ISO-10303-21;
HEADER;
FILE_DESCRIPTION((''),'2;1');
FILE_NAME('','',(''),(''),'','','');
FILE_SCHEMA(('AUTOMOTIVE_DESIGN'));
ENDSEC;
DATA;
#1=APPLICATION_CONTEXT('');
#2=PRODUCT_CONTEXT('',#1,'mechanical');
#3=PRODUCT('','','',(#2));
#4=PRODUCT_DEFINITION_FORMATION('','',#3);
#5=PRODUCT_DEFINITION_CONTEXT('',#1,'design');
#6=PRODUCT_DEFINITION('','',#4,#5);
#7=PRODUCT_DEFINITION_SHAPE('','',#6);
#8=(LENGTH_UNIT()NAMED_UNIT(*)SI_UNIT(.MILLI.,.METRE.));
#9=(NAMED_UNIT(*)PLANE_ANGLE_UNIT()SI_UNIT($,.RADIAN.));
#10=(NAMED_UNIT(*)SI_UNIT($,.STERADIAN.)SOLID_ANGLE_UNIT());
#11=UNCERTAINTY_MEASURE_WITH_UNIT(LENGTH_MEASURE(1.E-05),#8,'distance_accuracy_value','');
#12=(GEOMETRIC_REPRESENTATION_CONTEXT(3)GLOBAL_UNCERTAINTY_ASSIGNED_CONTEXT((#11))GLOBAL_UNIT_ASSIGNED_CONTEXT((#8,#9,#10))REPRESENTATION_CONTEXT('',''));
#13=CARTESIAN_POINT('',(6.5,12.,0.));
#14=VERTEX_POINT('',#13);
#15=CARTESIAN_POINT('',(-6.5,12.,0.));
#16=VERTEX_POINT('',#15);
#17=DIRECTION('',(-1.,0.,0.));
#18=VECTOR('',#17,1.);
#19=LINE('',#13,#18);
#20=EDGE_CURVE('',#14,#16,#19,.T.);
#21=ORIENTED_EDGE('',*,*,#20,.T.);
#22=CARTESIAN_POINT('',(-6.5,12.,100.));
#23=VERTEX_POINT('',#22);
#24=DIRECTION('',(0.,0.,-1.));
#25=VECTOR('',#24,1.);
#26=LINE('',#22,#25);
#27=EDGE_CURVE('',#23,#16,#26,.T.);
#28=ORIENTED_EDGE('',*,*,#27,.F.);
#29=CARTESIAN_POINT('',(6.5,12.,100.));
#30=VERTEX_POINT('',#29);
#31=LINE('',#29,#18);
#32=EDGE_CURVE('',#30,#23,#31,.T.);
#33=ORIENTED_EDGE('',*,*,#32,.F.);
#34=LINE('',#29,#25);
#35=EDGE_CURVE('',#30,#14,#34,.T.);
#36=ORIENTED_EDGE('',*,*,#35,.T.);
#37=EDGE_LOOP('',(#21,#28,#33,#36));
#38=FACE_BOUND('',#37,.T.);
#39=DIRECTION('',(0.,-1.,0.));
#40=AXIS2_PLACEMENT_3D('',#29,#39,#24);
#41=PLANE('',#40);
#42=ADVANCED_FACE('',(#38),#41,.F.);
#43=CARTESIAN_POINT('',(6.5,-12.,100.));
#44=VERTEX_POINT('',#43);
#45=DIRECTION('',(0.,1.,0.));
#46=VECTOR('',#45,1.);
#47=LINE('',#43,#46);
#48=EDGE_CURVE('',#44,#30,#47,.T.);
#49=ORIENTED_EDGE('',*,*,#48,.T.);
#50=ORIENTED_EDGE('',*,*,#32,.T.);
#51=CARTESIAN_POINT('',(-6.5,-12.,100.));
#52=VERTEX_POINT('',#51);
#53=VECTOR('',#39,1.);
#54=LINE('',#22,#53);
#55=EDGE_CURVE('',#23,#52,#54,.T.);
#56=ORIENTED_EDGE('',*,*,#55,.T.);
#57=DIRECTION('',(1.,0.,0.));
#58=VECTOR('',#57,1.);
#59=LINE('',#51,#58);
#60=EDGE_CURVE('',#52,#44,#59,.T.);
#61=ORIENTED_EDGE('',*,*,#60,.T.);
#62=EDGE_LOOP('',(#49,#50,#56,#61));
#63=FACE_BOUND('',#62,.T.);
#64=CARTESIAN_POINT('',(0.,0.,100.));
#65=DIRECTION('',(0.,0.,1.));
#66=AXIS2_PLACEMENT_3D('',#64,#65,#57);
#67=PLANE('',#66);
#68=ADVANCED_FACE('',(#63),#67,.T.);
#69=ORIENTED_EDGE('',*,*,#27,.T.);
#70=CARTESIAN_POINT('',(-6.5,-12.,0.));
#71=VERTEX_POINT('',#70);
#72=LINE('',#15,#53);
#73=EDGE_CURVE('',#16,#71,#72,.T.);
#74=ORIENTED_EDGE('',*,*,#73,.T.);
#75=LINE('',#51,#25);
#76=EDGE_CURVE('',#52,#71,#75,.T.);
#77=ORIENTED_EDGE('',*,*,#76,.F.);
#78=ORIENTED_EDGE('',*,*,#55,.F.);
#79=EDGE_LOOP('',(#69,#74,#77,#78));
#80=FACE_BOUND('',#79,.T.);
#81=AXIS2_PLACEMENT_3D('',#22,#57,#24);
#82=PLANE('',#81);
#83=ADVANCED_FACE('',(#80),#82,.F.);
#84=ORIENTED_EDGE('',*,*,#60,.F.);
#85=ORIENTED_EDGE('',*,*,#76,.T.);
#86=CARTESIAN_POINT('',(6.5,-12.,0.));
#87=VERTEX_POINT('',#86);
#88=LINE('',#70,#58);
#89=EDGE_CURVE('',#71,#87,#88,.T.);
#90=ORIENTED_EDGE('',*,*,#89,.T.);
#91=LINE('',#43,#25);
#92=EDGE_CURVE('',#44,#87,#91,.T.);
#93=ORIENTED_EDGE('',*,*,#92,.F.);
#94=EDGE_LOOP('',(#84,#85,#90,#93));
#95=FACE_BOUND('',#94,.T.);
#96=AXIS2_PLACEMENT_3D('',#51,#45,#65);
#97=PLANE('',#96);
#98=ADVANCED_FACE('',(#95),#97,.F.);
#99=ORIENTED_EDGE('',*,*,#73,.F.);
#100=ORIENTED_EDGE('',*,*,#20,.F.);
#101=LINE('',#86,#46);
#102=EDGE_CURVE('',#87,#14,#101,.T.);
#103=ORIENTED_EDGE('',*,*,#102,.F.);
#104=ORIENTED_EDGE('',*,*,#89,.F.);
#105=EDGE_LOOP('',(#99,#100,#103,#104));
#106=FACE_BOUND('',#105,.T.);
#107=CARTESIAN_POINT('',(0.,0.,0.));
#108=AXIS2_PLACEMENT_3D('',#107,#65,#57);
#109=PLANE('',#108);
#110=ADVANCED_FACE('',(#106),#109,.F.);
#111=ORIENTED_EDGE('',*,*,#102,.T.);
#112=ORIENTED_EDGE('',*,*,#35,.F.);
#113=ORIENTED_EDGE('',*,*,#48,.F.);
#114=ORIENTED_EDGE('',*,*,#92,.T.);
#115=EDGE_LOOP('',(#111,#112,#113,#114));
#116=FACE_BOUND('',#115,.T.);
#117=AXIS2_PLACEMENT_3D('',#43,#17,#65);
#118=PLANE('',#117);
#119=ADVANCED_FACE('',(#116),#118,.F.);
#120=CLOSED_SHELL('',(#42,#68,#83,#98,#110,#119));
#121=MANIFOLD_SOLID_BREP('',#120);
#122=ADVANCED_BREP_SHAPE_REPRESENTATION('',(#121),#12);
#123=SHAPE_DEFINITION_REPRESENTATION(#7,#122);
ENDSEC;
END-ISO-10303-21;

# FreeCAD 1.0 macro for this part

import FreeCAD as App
import Part
import Sketcher

V = App.Vector

doc = App.newDocument("Part")
body = doc.addObject("PartDesign::Body", "Body")

sketch1 = body.newObject("Sketcher::SketchObject", "Sketch")
sketch1.AttachmentSupport = (doc.getObject("XY_Plane"), [""])
sketch1.MapMode = "FlatFace"
sketch1.addGeometry(Part.LineSegment(V(-6.5, 12, 0), V(-6.5, -12, 0)), False)
sketch1.addGeometry(Part.LineSegment(V(-6.5, -12, 0), V(6.5, -12, 0)), False)
sketch1.addGeometry(Part.LineSegment(V(6.5, -12, 0), V(6.5, 12, 0)), False)
sketch1.addGeometry(Part.LineSegment(V(6.5, 12, 0), V(-6.5, 12, 0)), False)
sketch1.addConstraint(Sketcher.Constraint("Coincident", 0, 2, 1, 1))
sketch1.addConstraint(Sketcher.Constraint("Coincident", 1, 2, 2, 1))
sketch1.addConstraint(Sketcher.Constraint("Coincident", 2, 2, 3, 1))
sketch1.addConstraint(Sketcher.Constraint("Coincident", 3, 2, 0, 1))
sketch1.addConstraint(Sketcher.Constraint("Vertical", 0))
sketch1.addConstraint(Sketcher.Constraint("Horizontal", 1))
sketch1.addConstraint(Sketcher.Constraint("Vertical", 2))
sketch1.addConstraint(Sketcher.Constraint("Horizontal", 3))
sketch1.addConstraint(Sketcher.Constraint("Symmetric", 0, 2, 2, 2, -1, 1))
sketch1.addConstraint(Sketcher.Constraint("DistanceX", 1, 1, 1, 2, 13.0))
sketch1.addConstraint(Sketcher.Constraint("DistanceY", 0, 2, 0, 1, 24.0))
pad1 = body.newObject("PartDesign::Pad", "Pad")
pad1.Profile = sketch1
pad1.Length = 100

doc.recompute()
